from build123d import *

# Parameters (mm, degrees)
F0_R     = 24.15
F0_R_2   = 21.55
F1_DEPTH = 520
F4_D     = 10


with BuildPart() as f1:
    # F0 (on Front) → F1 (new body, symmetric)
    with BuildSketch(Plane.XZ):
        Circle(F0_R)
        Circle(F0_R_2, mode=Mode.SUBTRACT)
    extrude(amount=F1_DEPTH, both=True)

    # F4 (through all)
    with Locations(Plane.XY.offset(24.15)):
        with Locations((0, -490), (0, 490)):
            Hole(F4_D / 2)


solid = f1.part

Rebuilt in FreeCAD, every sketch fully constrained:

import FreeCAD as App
import Part
import Sketcher
from FreeCAD import Vector
Q = App.Units.Quantity

doc = App.newDocument("Part")
body = doc.addObject("PartDesign::Body", "Body")

# Sketch on XZ plane
sketch1 = body.newObject("Sketcher::SketchObject", "Sketch")
sketch1.AttachmentSupport = (doc.getObject("XZ_Plane"), [""])
sketch1.MapMode = "FlatFace"
sketch1.addGeometry([
    Part.Circle(Vector(0, 0, 0), Vector(0, 0, 1), 24),
    Part.Circle(Vector(0, 0, 0), Vector(0, 0, 1), 22),
], False)
sketch1.addConstraint([
    Sketcher.Constraint("Coincident", 0, 3, -1, 1),
    Sketcher.Constraint("Coincident", 1, 3, -1, 1),
    Sketcher.Constraint("Diameter", 0, Q("48.3 mm")),
    Sketcher.Constraint("Diameter", 1, Q("43.1 mm")),
])
pad1 = body.newObject("PartDesign::Pad", "Pad")
pad1.Profile = sketch1
pad1.Length = 1040
pad1.Midplane = True

# Sketch on XY plane
sketch2 = body.newObject("Sketcher::SketchObject", "Sketch001")
sketch2.AttachmentSupport = (doc.getObject("XY_Plane"), [""])
sketch2.MapMode = "FlatFace"
sketch2.AttachmentOffset = App.Placement(Vector(0, 0, 24.15), App.Rotation())
sketch2.addGeometry([
    Part.Circle(Vector(0, -490, 0), Vector(0, 0, 1), 5),
    Part.Circle(Vector(0, 490, 0), Vector(0, 0, 1), 5),
], False)
sketch2.addConstraint([
    Sketcher.Constraint("Equal", 0, 1),
    Sketcher.Constraint("Symmetric", 0, 3, 1, 3, -1, 1),
    Sketcher.Constraint("PointOnObject", 0, 3, -2),
    Sketcher.Constraint("Diameter", 0, Q("10 mm")),
    Sketcher.Constraint("DistanceY", 0, 3, -1, 1, Q("490 mm")),
])
doc.recompute()
hole = body.newObject("PartDesign::Hole", "Hole")
hole.Profile = sketch2
hole.ThreadType = "None"
hole.Diameter = 10
hole.DepthType = "ThroughAll"

doc.recompute()
